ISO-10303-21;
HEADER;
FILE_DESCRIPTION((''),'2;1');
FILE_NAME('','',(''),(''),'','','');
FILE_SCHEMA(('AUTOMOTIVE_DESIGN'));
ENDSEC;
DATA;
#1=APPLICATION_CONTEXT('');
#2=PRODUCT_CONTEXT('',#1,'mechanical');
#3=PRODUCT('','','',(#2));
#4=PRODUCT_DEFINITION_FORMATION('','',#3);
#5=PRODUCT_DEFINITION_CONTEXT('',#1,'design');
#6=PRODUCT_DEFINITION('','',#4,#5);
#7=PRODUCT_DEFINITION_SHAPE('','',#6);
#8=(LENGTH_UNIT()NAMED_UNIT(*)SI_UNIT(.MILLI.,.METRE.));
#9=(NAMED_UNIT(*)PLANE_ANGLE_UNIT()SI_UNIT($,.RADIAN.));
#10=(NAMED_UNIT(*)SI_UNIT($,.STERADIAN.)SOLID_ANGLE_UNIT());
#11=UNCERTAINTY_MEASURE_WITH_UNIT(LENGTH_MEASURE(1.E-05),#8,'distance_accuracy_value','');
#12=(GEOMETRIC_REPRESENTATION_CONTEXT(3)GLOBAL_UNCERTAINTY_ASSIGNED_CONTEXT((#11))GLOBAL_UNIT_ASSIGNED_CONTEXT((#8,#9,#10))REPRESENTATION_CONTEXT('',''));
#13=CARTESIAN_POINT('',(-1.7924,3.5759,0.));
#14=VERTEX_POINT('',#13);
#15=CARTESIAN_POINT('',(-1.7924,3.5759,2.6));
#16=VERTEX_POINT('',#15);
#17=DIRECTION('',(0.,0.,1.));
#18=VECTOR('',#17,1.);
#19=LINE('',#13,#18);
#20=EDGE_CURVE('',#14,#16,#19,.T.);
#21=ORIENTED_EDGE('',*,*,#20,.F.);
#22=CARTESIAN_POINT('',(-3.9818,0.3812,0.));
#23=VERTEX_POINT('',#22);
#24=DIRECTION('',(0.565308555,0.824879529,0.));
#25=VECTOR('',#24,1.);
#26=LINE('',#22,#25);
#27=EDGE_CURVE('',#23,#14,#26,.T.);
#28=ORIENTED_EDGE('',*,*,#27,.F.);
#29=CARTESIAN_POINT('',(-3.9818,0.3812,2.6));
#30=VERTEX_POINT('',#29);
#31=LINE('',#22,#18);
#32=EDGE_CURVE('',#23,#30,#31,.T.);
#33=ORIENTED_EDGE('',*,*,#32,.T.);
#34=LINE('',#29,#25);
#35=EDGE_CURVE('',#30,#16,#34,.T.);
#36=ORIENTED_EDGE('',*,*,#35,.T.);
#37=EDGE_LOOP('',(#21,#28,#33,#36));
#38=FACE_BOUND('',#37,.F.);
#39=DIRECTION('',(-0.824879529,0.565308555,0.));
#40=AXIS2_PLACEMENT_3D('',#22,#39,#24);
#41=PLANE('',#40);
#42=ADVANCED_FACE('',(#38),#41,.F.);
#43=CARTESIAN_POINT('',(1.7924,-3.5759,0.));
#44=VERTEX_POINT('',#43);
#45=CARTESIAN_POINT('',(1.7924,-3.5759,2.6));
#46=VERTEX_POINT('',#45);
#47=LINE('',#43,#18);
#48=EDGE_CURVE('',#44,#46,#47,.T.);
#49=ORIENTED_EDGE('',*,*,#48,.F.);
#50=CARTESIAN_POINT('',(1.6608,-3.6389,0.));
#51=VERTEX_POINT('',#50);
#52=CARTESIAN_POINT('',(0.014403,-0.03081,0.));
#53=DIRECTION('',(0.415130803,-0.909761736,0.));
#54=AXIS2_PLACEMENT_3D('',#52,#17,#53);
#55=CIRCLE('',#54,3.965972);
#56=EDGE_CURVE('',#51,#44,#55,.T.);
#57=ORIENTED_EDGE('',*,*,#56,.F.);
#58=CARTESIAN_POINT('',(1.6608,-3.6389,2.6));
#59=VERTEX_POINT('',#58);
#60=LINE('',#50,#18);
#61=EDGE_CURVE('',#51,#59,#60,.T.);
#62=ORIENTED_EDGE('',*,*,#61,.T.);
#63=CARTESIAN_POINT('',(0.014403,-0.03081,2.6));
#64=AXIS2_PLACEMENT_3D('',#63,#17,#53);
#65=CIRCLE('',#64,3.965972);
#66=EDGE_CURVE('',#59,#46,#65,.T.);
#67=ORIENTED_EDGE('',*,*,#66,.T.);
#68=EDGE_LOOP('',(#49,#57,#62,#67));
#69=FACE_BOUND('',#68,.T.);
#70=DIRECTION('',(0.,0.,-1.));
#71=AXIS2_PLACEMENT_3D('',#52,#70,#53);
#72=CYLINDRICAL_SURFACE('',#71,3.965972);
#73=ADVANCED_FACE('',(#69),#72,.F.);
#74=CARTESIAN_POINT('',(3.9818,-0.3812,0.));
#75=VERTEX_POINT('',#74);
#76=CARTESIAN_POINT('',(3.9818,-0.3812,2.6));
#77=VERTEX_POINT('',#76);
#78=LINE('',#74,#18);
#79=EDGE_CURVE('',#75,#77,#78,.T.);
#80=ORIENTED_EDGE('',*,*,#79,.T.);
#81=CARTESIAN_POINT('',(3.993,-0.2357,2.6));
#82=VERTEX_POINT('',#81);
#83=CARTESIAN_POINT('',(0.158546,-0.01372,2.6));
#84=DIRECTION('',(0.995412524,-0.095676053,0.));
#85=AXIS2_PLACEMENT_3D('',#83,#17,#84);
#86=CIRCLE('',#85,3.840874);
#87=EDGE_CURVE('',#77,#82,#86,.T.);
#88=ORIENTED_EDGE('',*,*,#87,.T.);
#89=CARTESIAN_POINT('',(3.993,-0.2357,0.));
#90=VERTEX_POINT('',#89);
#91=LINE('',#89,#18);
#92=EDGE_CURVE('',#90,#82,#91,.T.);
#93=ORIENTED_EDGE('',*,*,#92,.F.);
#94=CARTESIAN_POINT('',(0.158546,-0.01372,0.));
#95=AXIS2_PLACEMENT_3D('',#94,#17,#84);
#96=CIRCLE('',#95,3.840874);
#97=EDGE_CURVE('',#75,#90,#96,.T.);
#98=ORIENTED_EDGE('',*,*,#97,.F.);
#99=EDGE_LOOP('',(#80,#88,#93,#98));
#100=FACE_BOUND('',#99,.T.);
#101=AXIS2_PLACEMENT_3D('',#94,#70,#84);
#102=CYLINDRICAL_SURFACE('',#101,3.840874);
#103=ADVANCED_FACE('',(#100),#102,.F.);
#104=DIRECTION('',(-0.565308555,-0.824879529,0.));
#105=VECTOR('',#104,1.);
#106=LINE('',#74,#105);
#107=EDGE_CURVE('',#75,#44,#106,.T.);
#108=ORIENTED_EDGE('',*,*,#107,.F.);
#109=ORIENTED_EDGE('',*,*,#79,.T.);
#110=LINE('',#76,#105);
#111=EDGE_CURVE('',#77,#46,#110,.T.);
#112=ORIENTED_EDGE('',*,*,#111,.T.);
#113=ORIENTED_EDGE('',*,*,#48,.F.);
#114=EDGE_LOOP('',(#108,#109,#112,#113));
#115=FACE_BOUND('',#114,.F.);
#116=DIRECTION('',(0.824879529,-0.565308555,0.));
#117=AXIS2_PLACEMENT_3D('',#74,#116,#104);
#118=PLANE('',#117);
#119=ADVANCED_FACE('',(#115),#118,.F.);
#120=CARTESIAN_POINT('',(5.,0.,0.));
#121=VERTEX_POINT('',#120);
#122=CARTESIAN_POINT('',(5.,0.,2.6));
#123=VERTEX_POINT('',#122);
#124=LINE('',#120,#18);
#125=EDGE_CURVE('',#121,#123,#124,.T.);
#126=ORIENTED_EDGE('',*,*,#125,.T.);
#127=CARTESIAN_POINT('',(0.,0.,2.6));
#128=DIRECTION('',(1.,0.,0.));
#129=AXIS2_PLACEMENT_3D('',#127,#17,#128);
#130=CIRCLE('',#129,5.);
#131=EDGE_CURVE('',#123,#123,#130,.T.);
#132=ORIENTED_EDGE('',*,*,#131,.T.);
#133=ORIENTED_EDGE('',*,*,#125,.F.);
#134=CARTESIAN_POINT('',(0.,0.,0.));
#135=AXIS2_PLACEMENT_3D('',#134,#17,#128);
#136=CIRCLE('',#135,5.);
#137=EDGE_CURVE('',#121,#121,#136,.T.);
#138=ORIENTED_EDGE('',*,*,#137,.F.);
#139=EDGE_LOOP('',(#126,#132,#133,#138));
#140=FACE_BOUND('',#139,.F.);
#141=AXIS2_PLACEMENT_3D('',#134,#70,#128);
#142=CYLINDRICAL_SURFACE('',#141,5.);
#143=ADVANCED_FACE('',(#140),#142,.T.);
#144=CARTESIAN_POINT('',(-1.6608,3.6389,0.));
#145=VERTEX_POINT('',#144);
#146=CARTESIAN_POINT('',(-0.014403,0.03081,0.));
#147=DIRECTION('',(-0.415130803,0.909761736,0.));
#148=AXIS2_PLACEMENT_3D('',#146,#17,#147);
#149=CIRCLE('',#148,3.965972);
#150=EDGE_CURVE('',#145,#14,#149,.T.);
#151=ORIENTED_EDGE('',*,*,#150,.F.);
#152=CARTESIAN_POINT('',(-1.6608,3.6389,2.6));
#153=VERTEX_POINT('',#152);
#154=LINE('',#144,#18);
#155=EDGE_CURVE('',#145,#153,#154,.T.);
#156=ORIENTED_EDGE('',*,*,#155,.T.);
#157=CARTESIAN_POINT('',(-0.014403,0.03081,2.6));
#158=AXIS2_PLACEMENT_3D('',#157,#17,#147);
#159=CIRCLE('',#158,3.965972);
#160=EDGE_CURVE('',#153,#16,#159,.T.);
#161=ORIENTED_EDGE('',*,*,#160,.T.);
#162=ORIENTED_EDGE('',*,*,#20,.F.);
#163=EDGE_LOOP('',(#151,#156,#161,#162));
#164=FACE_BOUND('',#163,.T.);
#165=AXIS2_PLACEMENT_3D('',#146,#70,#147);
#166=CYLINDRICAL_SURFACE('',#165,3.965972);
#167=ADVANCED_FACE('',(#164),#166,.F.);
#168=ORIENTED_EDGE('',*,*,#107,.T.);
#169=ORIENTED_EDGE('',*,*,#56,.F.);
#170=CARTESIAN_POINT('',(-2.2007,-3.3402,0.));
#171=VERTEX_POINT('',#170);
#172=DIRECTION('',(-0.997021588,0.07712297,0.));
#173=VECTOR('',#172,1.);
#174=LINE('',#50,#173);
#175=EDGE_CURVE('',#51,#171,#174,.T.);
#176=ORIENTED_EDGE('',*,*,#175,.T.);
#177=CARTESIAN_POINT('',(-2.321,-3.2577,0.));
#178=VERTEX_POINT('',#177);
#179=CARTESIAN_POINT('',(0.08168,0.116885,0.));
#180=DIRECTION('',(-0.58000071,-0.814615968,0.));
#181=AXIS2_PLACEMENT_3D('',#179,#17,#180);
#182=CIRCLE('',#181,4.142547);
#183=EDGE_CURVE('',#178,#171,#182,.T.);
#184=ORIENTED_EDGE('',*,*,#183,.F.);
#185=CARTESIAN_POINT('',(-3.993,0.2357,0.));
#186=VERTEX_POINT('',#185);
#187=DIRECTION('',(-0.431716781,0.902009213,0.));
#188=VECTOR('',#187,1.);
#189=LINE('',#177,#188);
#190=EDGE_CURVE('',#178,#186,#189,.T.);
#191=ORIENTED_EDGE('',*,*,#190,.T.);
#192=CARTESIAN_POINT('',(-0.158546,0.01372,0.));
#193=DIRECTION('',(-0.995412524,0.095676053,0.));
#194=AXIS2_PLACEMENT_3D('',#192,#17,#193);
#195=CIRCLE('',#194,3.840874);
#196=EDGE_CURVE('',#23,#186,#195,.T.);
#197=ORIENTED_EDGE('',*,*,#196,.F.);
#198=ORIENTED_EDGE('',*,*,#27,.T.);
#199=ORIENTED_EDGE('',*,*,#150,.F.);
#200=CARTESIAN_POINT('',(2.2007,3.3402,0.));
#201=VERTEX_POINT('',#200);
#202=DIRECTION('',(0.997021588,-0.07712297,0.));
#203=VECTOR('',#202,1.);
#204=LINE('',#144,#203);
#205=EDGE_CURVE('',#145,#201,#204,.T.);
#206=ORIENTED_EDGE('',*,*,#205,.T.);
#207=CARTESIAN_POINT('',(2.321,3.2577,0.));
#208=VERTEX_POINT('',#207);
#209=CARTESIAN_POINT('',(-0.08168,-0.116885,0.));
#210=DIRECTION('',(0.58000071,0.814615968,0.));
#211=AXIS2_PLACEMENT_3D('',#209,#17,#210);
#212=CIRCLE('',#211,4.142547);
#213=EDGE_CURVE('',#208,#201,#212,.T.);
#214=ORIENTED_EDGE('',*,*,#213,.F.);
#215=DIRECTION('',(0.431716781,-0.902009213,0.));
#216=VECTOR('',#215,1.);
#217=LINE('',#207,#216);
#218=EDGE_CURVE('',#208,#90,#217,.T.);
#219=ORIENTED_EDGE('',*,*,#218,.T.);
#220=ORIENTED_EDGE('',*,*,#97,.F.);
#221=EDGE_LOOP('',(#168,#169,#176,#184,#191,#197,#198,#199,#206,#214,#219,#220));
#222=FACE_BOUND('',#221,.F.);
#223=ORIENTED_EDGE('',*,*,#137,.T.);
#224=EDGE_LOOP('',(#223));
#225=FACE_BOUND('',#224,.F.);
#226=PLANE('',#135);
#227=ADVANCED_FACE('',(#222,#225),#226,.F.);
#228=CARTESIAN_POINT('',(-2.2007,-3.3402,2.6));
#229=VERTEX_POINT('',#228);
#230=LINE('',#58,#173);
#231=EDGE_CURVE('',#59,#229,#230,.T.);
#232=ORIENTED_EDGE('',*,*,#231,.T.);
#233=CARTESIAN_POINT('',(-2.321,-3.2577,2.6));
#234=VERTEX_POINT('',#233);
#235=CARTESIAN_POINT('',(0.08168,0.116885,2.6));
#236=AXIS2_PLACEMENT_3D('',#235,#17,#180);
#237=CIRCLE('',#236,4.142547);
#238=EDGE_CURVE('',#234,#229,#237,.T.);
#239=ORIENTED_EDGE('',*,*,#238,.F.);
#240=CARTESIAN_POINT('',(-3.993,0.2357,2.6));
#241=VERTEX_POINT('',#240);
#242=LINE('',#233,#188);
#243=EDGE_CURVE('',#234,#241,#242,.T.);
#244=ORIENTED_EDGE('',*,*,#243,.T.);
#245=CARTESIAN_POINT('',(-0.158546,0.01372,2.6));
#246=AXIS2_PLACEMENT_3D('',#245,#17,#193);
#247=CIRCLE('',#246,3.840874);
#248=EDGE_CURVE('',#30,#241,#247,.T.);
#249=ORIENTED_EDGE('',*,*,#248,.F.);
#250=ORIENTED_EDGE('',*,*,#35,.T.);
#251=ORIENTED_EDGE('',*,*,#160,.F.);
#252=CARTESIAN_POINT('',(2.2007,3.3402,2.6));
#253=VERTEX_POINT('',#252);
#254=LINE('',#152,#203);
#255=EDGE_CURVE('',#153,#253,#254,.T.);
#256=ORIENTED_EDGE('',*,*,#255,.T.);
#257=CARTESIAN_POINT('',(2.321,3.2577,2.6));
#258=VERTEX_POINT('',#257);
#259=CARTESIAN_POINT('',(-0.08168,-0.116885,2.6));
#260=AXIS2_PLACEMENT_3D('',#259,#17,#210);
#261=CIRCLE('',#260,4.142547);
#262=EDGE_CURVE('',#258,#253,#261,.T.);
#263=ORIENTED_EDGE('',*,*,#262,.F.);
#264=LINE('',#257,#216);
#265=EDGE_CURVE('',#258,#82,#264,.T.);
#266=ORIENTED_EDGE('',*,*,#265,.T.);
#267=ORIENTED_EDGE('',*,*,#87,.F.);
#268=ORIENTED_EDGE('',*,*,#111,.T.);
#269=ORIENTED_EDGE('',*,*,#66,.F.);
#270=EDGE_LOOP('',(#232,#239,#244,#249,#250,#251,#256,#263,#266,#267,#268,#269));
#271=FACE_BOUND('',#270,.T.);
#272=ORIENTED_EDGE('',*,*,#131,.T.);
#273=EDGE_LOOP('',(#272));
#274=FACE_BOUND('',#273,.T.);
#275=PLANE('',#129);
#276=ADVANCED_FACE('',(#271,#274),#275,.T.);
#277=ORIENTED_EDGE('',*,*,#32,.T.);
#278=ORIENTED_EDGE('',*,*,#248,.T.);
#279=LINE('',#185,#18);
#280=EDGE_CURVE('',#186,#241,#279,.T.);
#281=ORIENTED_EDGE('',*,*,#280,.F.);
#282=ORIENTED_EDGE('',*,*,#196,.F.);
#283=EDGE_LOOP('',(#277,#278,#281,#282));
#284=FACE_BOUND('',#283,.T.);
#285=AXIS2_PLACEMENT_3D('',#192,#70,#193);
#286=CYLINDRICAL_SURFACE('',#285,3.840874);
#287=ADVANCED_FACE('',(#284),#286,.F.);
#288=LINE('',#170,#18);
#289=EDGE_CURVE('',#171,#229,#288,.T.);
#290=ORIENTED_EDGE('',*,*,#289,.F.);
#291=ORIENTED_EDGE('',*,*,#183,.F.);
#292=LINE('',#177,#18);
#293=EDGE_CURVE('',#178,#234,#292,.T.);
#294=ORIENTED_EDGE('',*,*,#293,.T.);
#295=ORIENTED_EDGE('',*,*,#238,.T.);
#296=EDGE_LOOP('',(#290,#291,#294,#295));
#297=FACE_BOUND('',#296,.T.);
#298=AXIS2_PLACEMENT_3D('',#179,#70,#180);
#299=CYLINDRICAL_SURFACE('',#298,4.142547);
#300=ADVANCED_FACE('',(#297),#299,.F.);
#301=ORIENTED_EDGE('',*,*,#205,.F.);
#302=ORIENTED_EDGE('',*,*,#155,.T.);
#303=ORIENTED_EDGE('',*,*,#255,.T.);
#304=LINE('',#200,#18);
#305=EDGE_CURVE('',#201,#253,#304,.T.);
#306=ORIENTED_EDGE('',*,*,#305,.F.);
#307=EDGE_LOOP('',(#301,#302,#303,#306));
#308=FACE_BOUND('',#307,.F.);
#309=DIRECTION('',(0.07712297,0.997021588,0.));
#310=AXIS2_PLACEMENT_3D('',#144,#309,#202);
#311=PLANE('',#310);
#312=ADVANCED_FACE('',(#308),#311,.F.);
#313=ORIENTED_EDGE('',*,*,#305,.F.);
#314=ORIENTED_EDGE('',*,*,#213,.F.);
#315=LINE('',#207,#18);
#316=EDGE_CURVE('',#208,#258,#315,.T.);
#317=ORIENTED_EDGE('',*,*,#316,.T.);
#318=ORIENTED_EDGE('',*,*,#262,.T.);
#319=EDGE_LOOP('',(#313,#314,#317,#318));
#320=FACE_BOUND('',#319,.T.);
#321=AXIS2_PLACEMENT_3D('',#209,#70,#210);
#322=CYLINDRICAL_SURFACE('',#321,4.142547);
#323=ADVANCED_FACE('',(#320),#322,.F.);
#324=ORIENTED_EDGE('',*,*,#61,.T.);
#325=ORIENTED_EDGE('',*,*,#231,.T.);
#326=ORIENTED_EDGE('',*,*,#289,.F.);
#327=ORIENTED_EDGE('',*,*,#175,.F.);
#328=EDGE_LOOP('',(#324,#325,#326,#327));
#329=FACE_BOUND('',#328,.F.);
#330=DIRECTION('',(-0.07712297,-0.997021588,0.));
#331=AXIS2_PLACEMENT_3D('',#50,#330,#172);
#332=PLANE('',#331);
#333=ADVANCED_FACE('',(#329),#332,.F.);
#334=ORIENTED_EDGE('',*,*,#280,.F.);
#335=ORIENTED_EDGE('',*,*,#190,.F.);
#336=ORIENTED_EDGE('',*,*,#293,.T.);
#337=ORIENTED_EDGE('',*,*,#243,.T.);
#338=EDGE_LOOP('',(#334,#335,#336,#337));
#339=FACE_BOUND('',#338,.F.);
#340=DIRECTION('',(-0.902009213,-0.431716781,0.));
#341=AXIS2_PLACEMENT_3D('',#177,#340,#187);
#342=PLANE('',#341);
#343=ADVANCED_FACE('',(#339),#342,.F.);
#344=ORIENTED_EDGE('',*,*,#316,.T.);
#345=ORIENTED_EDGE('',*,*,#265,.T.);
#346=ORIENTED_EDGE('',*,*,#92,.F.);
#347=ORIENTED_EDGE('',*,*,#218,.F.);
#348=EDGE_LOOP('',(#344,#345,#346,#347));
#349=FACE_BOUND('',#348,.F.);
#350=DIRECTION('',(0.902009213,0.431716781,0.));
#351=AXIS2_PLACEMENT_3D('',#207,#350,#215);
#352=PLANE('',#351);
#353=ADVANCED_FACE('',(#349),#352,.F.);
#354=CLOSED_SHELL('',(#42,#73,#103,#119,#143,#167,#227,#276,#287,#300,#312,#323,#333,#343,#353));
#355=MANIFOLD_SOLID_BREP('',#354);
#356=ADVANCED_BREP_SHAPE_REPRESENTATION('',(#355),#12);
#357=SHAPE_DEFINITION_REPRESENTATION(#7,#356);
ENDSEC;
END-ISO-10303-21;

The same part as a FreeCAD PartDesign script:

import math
import FreeCAD as App
import Part
import Sketcher

doc = App.newDocument("Part")
body = doc.addObject("PartDesign::Body", "Body")

sketch1 = body.newObject("Sketcher::SketchObject", "Sketch")
sketch1.AttachmentSupport = (doc.getObject("XY_Plane"), [""])
sketch1.MapMode = "FlatFace"
sketch1.addGeometry([
    Part.Circle(App.Vector(0, 0, 0), App.Vector(0, 0, 1), 5),
    Part.ArcOfCircle(Part.Circle(App.Vector(0.158546, -0.01372, 0), App.Vector(0, 0, 1), 3.840874), math.radians(-5.490232), math.radians(-3.313201)),
    Part.LineSegment(App.Vector(3.9818, -0.3812, 0), App.Vector(1.7924, -3.5759, 0)),
    Part.ArcOfCircle(Part.Circle(App.Vector(0.014403, -0.03081, 0), App.Vector(0, 0, 1), 3.965972), math.radians(-65.472446), math.radians(-63.364496)),
    Part.LineSegment(App.Vector(1.6608, -3.6389, 0), App.Vector(-2.2007, -3.3402, 0)),
    Part.ArcOfCircle(Part.Circle(App.Vector(0.08168, 0.116885, 0), App.Vector(0, 0, 1), 4.142547), math.radians(-125.450593), math.radians(-123.432939)),
    Part.LineSegment(App.Vector(-2.321, -3.2577, 0), App.Vector(-3.993, 0.2357, 0)),
    Part.ArcOfCircle(Part.Circle(App.Vector(-0.158546, 0.01372, 0), App.Vector(0, 0, 1), 3.840874), math.radians(174.509768), math.radians(176.686799)),
    Part.LineSegment(App.Vector(-3.9818, 0.3812, 0), App.Vector(-1.7924, 3.5759, 0)),
    Part.ArcOfCircle(Part.Circle(App.Vector(-0.014403, 0.03081, 0), App.Vector(0, 0, 1), 3.965972), math.radians(114.527554), math.radians(116.635504)),
    Part.LineSegment(App.Vector(-1.6608, 3.6389, 0), App.Vector(2.2007, 3.3402, 0)),
    Part.ArcOfCircle(Part.Circle(App.Vector(-0.08168, -0.116885, 0), App.Vector(0, 0, 1), 4.142547), math.radians(54.549407), math.radians(56.567061)),
    Part.LineSegment(App.Vector(2.321, 3.2577, 0), App.Vector(3.993, -0.2357, 0)),
], False)
sketch1.addConstraint([
    Sketcher.Constraint("Coincident", 1, 1, 2, 1),
    Sketcher.Constraint("Coincident", 2, 2, 3, 2),
    Sketcher.Constraint("Coincident", 3, 1, 4, 1),
    Sketcher.Constraint("Coincident", 4, 2, 5, 2),
    Sketcher.Constraint("Coincident", 5, 1, 6, 1),
    Sketcher.Constraint("Coincident", 6, 2, 7, 2),
    Sketcher.Constraint("Coincident", 7, 1, 8, 1),
    Sketcher.Constraint("Coincident", 8, 2, 9, 2),
    Sketcher.Constraint("Coincident", 9, 1, 10, 1),
    Sketcher.Constraint("Coincident", 10, 2, 11, 2),
    Sketcher.Constraint("Coincident", 11, 1, 12, 1),
    Sketcher.Constraint("Coincident", 12, 2, 1, 2),
    Sketcher.Constraint("Coincident", 0, 3, -1, 1),
    Sketcher.Constraint("Equal", 1, 7),
    Sketcher.Constraint("Equal", 3, 9),
    Sketcher.Constraint("Equal", 5, 11),
    Sketcher.Constraint("Symmetric", 1, 3, 7, 3, -1, 1),
    Sketcher.Constraint("Symmetric", 3, 3, 9, 3, -1, 1),
    Sketcher.Constraint("Symmetric", 5, 3, 11, 3, -1, 1),
    Sketcher.Constraint("Parallel", 2, 8),
    Sketcher.Constraint("Parallel", 4, 10),
    Sketcher.Constraint("Parallel", 6, 12),
    Sketcher.Constraint("Equal", 2, 4),
    Sketcher.Constraint("Equal", 4, 6),
    Sketcher.Constraint("Equal", 6, 8),
    Sketcher.Constraint("Equal", 8, 10),
    Sketcher.Constraint("Equal", 10, 12),
    Sketcher.Constraint("Diameter", 0, 10.0),
    Sketcher.Constraint("Radius", 3, 3.966),
    Sketcher.Constraint("Radius", 1, 3.8409),
    Sketcher.Constraint("Radius", 5, 4.1425),
    Sketcher.Constraint("Distance", 2, 3.873),
    Sketcher.Constraint("DistanceY", -1, 1, 5, 3, 0.117),
    Sketcher.Constraint("DistanceY", 2, 2, -1, 1, 3.576),
    Sketcher.Constraint("DistanceY", 3, 1, -1, 1, 3.639),
    Sketcher.Constraint("DistanceX", 5, 1, -1, 1, 2.321),
    Sketcher.Constraint("DistanceX", 6, 2, -1, 1, 3.993),
    Sketcher.Constraint("DistanceY", 3, 3, 1, 3, 0.017),
    Sketcher.Constraint("DistanceX", 7, 3, 3, 3, 0.173),
    Sketcher.Constraint("DistanceX", 7, 3, 1, 3, 0.317),
    Sketcher.Constraint("DistanceX", 9, 3, 5, 3, 0.096),
])
pad1 = body.newObject("PartDesign::Pad", "Pad")
pad1.Profile = sketch1
pad1.Length = 2.6

doc.recompute()
